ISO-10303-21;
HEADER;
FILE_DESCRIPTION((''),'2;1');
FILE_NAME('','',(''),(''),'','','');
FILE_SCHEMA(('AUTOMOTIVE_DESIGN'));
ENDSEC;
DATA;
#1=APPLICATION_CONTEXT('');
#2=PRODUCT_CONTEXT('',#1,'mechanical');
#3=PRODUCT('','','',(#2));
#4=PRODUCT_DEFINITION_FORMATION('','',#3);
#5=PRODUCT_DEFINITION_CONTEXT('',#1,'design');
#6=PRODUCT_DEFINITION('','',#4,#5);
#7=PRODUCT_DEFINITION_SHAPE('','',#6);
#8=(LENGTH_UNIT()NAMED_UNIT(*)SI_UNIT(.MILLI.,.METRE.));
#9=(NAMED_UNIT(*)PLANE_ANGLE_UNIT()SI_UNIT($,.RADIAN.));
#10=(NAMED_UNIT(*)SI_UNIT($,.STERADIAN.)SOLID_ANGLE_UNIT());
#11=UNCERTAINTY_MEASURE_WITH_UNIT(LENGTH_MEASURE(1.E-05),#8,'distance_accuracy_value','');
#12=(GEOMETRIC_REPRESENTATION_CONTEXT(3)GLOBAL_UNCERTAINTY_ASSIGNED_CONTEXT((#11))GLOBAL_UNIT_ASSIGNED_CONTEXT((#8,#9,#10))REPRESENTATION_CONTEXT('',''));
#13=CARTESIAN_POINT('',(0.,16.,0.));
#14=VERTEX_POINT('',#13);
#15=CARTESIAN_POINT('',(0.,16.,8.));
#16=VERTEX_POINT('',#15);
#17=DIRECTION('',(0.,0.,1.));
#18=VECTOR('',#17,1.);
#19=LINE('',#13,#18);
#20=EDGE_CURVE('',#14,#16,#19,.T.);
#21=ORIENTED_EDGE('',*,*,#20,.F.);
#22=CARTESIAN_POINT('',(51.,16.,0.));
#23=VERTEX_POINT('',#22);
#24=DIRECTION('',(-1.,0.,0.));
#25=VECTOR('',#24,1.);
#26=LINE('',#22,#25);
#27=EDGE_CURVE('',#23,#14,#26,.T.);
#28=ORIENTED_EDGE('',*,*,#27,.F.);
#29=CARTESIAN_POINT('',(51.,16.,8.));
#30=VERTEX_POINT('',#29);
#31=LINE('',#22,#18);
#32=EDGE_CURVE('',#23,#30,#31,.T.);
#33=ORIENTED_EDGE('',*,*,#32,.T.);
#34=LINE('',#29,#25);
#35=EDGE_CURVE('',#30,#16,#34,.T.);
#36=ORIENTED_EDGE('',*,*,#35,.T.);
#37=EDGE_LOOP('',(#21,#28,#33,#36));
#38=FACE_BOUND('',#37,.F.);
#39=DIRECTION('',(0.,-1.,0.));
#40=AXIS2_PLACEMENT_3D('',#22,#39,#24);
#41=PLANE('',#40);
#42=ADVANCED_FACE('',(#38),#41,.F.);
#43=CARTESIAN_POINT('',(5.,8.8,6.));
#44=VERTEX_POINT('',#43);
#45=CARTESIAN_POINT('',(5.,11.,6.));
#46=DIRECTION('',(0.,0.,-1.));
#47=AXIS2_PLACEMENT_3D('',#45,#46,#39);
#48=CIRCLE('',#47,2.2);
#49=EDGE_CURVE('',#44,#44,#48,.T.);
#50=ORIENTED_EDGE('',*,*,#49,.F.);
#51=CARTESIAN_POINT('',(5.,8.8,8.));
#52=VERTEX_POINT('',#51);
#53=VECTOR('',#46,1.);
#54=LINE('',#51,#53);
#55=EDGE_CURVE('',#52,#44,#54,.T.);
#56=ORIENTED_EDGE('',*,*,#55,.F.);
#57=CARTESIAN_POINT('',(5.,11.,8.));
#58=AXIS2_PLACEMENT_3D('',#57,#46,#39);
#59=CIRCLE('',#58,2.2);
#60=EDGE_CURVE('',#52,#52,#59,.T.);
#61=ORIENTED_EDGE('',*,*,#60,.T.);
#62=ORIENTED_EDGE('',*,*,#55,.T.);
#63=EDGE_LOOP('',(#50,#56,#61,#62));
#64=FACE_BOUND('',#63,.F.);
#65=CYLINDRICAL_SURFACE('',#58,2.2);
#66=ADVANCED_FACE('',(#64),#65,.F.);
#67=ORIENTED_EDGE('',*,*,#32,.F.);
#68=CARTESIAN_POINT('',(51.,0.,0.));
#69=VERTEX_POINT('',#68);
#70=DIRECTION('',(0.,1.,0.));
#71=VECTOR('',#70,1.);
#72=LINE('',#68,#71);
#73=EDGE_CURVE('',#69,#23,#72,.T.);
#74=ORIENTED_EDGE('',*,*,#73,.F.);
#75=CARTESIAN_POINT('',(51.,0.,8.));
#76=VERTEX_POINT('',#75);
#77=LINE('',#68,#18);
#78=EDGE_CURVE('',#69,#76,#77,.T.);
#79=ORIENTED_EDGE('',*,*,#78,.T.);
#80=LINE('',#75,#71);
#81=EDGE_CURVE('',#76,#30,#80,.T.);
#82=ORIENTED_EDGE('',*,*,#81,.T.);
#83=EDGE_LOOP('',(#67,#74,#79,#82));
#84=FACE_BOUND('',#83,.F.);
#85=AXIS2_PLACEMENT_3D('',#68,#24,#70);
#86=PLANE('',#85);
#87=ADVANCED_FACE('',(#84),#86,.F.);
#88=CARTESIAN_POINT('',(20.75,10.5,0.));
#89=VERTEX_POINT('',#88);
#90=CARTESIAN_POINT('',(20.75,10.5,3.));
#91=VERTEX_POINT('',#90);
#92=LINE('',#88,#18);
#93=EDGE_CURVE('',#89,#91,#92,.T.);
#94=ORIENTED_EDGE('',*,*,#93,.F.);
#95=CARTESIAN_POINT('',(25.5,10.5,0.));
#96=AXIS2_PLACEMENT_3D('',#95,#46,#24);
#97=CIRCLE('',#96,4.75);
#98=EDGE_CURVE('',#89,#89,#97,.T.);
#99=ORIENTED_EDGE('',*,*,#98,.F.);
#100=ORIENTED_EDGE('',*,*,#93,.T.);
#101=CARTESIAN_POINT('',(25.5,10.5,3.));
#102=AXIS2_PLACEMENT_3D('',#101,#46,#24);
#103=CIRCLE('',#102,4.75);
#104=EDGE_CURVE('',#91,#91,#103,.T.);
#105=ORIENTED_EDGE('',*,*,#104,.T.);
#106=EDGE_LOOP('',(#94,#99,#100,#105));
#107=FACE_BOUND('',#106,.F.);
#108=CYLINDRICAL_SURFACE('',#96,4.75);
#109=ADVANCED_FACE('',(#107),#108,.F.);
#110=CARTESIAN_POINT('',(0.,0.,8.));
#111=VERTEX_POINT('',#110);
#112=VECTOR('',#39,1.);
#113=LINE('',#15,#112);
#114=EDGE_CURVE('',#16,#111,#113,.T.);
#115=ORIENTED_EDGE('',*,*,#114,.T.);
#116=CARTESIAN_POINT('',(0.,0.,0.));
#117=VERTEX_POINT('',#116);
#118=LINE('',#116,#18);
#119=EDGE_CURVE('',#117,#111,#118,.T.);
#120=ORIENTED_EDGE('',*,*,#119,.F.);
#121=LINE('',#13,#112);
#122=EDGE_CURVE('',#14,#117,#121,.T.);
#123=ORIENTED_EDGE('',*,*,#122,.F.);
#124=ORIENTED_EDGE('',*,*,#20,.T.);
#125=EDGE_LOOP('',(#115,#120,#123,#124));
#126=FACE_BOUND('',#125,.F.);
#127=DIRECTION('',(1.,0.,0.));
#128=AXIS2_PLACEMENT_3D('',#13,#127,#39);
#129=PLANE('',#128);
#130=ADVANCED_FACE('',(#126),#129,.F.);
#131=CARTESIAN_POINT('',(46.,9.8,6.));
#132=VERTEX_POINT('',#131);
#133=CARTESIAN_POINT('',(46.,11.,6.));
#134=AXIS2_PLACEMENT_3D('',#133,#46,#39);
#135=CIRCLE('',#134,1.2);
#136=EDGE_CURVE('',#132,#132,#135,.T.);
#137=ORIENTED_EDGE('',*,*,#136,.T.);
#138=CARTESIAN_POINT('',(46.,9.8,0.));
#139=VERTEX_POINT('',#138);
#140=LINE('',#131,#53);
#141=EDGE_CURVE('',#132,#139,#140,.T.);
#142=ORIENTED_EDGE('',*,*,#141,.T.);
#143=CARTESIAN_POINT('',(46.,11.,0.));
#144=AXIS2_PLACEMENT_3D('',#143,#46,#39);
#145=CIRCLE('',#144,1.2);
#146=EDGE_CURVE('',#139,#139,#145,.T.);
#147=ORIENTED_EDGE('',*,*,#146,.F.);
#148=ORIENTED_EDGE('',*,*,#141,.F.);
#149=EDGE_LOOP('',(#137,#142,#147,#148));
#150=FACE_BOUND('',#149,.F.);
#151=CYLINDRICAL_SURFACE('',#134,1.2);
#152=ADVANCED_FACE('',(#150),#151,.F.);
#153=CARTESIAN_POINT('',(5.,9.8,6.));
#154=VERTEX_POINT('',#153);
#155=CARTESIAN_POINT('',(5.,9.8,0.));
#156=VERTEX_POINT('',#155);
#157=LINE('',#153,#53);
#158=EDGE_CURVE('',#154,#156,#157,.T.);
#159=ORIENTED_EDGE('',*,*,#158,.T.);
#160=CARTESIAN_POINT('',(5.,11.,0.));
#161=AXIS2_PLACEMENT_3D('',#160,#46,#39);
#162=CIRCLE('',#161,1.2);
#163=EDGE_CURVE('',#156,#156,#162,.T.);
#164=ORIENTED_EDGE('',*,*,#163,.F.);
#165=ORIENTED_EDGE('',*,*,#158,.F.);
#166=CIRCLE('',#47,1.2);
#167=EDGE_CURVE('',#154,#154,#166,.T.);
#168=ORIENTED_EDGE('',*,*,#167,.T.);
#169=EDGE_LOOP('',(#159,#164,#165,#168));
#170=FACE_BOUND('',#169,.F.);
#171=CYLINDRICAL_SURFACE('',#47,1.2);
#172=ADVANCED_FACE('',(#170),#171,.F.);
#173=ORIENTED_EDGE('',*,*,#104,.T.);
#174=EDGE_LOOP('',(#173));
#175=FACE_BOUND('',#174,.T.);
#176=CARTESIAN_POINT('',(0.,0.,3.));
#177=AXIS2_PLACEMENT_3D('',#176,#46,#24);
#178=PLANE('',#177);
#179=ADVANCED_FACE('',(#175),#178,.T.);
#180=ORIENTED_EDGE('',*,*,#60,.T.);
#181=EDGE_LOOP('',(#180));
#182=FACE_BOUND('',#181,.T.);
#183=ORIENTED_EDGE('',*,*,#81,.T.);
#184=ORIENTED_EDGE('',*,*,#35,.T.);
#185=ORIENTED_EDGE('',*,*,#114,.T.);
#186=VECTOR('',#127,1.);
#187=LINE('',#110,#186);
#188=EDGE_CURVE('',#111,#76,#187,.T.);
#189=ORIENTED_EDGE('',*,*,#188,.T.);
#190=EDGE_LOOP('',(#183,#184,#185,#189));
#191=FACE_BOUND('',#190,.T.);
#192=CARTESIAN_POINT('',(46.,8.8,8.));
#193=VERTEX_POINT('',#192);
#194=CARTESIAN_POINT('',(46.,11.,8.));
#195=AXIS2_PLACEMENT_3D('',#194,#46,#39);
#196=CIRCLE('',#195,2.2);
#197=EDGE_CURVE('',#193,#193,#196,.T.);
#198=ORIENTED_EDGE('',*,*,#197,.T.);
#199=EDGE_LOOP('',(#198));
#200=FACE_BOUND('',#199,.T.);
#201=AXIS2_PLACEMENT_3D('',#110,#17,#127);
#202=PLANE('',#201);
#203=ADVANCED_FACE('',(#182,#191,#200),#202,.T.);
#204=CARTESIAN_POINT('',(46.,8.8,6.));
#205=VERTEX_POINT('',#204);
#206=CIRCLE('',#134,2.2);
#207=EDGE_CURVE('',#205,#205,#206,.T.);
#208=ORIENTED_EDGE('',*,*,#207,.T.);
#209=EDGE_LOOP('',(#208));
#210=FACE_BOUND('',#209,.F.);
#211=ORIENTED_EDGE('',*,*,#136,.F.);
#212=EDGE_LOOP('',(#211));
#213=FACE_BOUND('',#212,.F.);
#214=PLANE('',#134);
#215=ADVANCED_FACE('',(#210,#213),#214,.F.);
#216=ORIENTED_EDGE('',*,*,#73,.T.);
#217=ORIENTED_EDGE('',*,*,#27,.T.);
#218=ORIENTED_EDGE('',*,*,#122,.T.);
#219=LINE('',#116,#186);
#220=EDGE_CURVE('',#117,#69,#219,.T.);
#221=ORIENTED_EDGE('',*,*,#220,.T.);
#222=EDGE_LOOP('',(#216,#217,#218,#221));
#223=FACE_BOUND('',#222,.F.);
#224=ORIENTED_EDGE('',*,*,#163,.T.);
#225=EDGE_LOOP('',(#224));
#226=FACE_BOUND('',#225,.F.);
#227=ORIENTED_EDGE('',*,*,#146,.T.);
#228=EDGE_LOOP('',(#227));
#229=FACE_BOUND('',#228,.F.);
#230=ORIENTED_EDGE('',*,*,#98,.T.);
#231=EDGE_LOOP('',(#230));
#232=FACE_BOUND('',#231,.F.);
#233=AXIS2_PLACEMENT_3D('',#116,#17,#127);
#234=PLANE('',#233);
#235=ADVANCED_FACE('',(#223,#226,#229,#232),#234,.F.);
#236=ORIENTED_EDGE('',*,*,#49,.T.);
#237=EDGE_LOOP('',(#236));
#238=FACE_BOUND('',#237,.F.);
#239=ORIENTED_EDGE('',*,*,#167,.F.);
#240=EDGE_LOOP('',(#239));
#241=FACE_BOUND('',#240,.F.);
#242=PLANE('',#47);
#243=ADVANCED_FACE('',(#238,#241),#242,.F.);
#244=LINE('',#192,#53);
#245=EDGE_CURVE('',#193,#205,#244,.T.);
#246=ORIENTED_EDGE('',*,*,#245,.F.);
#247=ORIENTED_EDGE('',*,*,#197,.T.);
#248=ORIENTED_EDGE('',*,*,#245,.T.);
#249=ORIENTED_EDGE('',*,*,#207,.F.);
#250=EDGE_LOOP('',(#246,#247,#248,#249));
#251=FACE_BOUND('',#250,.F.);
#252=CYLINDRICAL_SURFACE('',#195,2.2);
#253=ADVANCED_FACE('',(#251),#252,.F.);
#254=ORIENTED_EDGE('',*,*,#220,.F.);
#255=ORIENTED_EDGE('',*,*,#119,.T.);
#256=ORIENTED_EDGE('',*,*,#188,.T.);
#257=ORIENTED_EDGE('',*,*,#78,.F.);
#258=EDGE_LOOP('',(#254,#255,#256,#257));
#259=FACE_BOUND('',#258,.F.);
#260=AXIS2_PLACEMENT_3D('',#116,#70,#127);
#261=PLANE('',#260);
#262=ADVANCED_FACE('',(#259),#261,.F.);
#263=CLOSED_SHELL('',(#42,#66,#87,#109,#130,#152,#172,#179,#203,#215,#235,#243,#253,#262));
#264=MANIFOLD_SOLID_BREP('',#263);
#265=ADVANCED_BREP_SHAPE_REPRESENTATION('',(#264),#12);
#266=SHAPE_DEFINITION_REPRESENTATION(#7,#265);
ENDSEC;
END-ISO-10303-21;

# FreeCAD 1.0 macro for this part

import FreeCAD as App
import Part
import Sketcher

V = App.Vector
Q = App.Units.Quantity

doc = App.newDocument("Part")
body = doc.addObject("PartDesign::Body", "Body")

# Sketch on XY plane
sketch1 = body.newObject("Sketcher::SketchObject", "Sketch")
sketch1.AttachmentSupport = (doc.getObject("XY_Plane"), [""])
sketch1.MapMode = "FlatFace"
sketch1.addGeometry(Part.LineSegment(V(0, 16, 0), V(0, 0, 0)), False)
sketch1.addGeometry(Part.LineSegment(V(0, 0, 0), V(51, 0, 0)), False)
sketch1.addGeometry(Part.LineSegment(V(51, 0, 0), V(51, 16, 0)), False)
sketch1.addGeometry(Part.LineSegment(V(51, 16, 0), V(0, 16, 0)), False)
sketch1.addConstraint(Sketcher.Constraint("Coincident", 0, 2, 1, 1))
sketch1.addConstraint(Sketcher.Constraint("Coincident", 1, 2, 2, 1))
sketch1.addConstraint(Sketcher.Constraint("Coincident", 2, 2, 3, 1))
sketch1.addConstraint(Sketcher.Constraint("Coincident", 3, 2, 0, 1))
sketch1.addConstraint(Sketcher.Constraint("Vertical", 0))
sketch1.addConstraint(Sketcher.Constraint("Horizontal", 1))
sketch1.addConstraint(Sketcher.Constraint("Vertical", 2))
sketch1.addConstraint(Sketcher.Constraint("Horizontal", 3))
sketch1.addConstraint(Sketcher.Constraint("Coincident", 0, 2, -1, 1))
sketch1.addConstraint(Sketcher.Constraint("DistanceX", 1, 1, 1, 2, Q("51 mm")))
sketch1.addConstraint(Sketcher.Constraint("DistanceY", 0, 2, 0, 1, Q("16 mm")))
pad1 = body.newObject("PartDesign::Pad", "Pad")
pad1.Profile = sketch1
pad1.Length = 8

# Sketch on XY plane
sketch2 = body.newObject("Sketcher::SketchObject", "Sketch001")
sketch2.AttachmentSupport = (doc.getObject("XY_Plane"), [""])
sketch2.MapMode = "FlatFace"
sketch2.addGeometry(Part.Circle(V(25.5, 10.5, 0), V(0, 0, 1), 4.8), False)
sketch2.addConstraint(Sketcher.Constraint("Diameter", 0, Q("9.5 mm")))
sketch2.addConstraint(Sketcher.Constraint("DistanceY", -1, 1, 0, 3, Q("10.5 mm")))
sketch2.addConstraint(Sketcher.Constraint("DistanceX", -1, 1, 0, 3, Q("25.5 mm")))
pocket1 = body.newObject("PartDesign::Pocket", "Pocket")
pocket1.Profile = sketch2
pocket1.Length = 3
pocket1.Reversed = True

# Sketch on XY plane
sketch3 = body.newObject("Sketcher::SketchObject", "Sketch002")
sketch3.AttachmentSupport = (doc.getObject("XY_Plane"), [""])
sketch3.MapMode = "FlatFace"
sketch3.AttachmentOffset = App.Placement(V(0, 0, 8), App.Rotation())
sketch3.addGeometry(Part.Circle(V(5, 11, 0), V(0, 0, 1), 1.2), False)
sketch3.addGeometry(Part.Circle(V(46, 11, 0), V(0, 0, 1), 1.2), False)
sketch3.addConstraint(Sketcher.Constraint("Equal", 0, 1))
sketch3.addConstraint(Sketcher.Constraint("Horizontal", 0, 3, 1, 3))
sketch3.addConstraint(Sketcher.Constraint("Diameter", 0, Q("2.4 mm")))
sketch3.addConstraint(Sketcher.Constraint("DistanceX", -1, 1, 0, 3, Q("5 mm")))
sketch3.addConstraint(Sketcher.Constraint("DistanceY", -1, 1, 0, 3, Q("11 mm")))
sketch3.addConstraint(Sketcher.Constraint("DistanceX", -1, 1, 1, 3, Q("46 mm")))
doc.recompute()
hole = body.newObject("PartDesign::Hole", "Hole")
hole.Profile = sketch3
hole.ThreadType = "None"
hole.Diameter = 2.4
hole.DepthType = "ThroughAll"
hole.HoleCutType = "Counterbore"
hole.HoleCutDiameter = 4.4
hole.HoleCutDepth = 2

doc.recompute()
